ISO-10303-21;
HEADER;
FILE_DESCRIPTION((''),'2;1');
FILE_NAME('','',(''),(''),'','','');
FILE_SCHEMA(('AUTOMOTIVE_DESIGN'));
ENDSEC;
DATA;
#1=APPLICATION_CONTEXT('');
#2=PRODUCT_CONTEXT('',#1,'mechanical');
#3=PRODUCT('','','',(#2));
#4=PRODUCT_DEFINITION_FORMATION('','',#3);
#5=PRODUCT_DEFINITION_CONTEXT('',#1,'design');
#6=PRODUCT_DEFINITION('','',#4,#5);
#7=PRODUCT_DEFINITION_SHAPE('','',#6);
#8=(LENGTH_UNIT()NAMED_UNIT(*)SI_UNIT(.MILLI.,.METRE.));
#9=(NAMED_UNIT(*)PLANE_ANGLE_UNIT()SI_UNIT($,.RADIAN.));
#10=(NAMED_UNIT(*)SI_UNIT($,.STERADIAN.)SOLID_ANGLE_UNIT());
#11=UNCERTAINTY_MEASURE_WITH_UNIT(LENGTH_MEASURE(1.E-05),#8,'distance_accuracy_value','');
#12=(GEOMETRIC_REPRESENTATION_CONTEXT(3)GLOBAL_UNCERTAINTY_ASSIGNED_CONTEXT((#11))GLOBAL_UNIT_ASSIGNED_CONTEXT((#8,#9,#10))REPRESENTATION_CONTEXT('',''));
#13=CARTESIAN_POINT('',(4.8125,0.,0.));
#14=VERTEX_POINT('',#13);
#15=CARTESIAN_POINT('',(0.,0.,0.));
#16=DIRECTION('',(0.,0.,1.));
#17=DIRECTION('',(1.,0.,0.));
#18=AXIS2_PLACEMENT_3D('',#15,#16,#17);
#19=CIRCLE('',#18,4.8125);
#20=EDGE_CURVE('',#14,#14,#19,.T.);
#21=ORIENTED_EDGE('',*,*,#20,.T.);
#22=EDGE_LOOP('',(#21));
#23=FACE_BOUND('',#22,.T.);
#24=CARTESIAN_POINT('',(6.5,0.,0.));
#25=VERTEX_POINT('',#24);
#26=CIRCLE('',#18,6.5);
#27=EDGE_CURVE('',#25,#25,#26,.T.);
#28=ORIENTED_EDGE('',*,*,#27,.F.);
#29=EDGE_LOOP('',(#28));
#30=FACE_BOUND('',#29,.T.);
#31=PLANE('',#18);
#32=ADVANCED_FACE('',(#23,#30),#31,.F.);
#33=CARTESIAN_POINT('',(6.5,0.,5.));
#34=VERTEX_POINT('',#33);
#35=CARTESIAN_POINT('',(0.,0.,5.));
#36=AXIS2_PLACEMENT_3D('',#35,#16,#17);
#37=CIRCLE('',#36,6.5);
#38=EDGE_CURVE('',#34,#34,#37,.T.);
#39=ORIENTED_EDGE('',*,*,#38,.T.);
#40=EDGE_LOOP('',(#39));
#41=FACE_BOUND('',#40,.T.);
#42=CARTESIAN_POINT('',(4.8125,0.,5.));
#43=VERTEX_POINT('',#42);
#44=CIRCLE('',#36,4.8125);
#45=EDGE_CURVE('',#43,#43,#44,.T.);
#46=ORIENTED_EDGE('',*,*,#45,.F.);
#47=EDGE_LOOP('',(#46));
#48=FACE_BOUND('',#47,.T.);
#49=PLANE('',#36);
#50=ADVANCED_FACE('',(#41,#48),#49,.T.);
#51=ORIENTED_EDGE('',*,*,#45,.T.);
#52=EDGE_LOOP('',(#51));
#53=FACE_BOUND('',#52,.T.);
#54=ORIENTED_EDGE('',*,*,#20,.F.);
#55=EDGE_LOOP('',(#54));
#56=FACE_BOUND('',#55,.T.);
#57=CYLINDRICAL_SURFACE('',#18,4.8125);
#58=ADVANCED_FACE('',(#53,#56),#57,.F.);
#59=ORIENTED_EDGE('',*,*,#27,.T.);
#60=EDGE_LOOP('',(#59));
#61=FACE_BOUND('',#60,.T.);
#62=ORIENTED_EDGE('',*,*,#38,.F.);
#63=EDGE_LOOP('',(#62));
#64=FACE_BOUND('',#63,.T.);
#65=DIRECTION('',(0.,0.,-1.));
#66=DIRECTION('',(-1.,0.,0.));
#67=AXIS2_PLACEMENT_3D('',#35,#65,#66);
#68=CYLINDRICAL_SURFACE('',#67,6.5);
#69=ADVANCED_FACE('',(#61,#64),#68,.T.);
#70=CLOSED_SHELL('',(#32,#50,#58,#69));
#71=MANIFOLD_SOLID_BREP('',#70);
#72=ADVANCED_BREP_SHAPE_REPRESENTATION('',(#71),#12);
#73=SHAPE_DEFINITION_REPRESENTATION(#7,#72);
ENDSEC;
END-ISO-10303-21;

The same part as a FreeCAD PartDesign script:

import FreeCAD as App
import Part
import Sketcher
from FreeCAD import Vector

doc = App.newDocument("Part")
body = doc.addObject("PartDesign::Body", "Body")

# Sketch on XY plane
sketch1 = doc.addObject("Sketcher::SketchObject", "Sketch")
body.addObject(sketch1)
sketch1.AttachmentSupport = (doc.XY_Plane, [""])
sketch1.MapMode = "FlatFace"
sketch1.addGeometry(Part.Circle(Vector(0, 0, 0), Vector(0, 0, 1), 6), False)
sketch1.addConstraint(Sketcher.Constraint("Coincident", 0, 3, -1, 1))
sketch1.addConstraint(Sketcher.Constraint("Diameter", 0, 13.0))
pad1 = doc.addObject("PartDesign::Pad", "Pad")
body.addObject(pad1)
pad1.Profile = sketch1
pad1.Length = 5

# Sketch on XY plane
sketch2 = doc.addObject("Sketcher::SketchObject", "Sketch001")
body.addObject(sketch2)
sketch2.AttachmentSupport = (doc.XY_Plane, [""])
sketch2.MapMode = "FlatFace"
sketch2.AttachmentOffset = App.Placement(Vector(0, 0, 5), App.Rotation())
sketch2.addGeometry(Part.Circle(Vector(0, 0, 0), Vector(0, 0, 1), 4.8), False)
sketch2.addConstraint(Sketcher.Constraint("Coincident", 0, 3, -1, 1))
sketch2.addConstraint(Sketcher.Constraint("Diameter", 0, 9.625))
pocket1 = doc.addObject("PartDesign::Pocket", "Pocket")
body.addObject(pocket1)
pocket1.Profile = sketch2
pocket1.Length = 5

doc.recompute()
